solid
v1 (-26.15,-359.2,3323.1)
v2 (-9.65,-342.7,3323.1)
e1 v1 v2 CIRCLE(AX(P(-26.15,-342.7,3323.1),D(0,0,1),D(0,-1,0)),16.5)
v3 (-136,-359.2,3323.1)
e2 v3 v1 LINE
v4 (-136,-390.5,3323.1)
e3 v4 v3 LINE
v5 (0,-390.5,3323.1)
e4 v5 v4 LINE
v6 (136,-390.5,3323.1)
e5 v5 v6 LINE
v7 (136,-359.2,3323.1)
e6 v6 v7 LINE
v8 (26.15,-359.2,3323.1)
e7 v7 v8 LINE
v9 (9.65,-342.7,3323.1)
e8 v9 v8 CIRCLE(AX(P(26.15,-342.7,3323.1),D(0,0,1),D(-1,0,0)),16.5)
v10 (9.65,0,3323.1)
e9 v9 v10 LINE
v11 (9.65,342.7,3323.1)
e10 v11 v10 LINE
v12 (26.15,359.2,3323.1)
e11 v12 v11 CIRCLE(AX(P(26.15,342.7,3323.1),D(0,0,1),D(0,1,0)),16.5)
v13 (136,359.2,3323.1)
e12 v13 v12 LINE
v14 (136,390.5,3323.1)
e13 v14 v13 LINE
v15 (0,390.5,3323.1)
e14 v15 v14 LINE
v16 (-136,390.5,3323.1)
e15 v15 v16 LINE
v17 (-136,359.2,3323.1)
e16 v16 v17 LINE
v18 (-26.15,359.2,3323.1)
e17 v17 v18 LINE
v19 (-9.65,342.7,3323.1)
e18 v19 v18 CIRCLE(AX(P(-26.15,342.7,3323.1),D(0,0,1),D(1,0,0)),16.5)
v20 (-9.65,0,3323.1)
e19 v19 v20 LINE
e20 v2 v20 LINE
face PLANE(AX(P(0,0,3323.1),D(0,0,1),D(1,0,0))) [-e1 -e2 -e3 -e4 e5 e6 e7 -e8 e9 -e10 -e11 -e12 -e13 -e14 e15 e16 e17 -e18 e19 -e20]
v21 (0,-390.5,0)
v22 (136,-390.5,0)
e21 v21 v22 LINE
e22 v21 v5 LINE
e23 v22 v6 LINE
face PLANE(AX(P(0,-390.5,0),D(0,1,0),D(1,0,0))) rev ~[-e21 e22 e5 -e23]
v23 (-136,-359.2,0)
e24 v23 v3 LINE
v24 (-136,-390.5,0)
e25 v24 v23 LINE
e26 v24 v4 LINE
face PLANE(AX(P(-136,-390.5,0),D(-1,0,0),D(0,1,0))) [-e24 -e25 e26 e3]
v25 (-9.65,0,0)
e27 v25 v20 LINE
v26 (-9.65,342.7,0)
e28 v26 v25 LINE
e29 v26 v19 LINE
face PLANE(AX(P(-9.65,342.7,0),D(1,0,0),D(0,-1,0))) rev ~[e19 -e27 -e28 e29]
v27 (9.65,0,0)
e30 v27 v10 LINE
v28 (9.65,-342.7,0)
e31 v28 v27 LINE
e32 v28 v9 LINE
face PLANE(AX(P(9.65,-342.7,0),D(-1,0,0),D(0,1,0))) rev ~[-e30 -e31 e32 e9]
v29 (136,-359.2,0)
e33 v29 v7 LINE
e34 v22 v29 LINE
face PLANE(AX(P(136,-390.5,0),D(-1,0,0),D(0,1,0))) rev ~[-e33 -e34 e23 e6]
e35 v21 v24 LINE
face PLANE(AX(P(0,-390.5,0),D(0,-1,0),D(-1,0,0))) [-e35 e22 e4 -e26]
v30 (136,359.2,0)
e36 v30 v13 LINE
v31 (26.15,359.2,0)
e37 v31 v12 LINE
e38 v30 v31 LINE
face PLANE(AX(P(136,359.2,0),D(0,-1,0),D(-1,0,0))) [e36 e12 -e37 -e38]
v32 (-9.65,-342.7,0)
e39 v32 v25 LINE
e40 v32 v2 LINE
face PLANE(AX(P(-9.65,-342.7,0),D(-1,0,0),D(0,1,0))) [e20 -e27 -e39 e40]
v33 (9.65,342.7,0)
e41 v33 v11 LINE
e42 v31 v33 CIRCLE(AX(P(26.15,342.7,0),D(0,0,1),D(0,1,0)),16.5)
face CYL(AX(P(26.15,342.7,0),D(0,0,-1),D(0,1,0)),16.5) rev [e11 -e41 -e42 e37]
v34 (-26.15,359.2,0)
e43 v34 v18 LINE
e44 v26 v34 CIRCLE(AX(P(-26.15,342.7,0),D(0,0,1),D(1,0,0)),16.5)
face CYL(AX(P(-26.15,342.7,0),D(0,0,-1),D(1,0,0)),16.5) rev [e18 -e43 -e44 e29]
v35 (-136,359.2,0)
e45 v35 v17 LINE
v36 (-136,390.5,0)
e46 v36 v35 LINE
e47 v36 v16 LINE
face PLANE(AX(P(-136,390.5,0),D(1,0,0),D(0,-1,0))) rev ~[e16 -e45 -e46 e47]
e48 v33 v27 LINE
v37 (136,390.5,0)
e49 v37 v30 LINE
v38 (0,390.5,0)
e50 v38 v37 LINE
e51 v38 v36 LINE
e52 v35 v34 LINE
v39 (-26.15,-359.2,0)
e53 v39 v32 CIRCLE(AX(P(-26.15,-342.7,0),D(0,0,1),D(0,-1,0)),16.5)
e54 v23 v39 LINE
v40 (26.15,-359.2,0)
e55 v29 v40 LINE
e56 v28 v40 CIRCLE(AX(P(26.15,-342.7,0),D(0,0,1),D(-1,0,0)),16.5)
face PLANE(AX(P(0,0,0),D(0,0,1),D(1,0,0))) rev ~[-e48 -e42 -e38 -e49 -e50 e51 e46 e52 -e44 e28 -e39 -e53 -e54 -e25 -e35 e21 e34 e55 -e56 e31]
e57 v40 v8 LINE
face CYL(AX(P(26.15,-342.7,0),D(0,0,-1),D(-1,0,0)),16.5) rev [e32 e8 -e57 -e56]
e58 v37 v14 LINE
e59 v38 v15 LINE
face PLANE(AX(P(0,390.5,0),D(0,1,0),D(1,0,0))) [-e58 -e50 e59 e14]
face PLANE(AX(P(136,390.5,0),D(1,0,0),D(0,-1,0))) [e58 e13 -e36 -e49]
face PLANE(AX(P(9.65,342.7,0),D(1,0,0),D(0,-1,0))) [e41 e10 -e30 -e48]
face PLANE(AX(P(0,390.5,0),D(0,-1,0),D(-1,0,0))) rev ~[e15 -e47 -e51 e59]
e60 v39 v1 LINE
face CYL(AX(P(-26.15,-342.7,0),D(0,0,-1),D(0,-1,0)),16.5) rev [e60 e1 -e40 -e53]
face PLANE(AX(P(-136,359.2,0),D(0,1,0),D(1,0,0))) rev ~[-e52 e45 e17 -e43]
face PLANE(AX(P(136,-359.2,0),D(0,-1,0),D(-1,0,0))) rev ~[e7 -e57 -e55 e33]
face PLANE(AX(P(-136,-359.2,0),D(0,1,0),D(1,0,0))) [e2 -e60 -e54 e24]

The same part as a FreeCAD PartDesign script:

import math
import FreeCAD as App
import Part
import Sketcher
from FreeCAD import Vector

doc = App.newDocument("Part")
body = doc.addObject("PartDesign::Body", "Body")

sketch1 = body.newObject("Sketcher::SketchObject", "Sketch")
sketch1.AttachmentSupport = (doc.getObject("XY_Plane"), [""])
sketch1.MapMode = "FlatFace"
sketch1.addGeometry(Part.LineSegment(Vector(-136, -359.2, 0), Vector(-136, -390.5, 0)), False)
sketch1.addGeometry(Part.LineSegment(Vector(-136, -390.5, 0), Vector(136, -390.5, 0)), False)
sketch1.addGeometry(Part.LineSegment(Vector(136, -390.5, 0), Vector(136, -359.2, 0)), False)
sketch1.addGeometry(Part.LineSegment(Vector(136, -359.2, 0), Vector(26.15, -359.2, 0)), False)
sketch1.addGeometry(Part.ArcOfCircle(Part.Circle(Vector(26.15, -342.7, 0), Vector(0, 0, 1), 16.5), math.radians(180), math.radians(270)), False)
sketch1.addGeometry(Part.LineSegment(Vector(9.65, -342.7, 0), Vector(9.65, 342.7, 0)), False)
sketch1.addGeometry(Part.ArcOfCircle(Part.Circle(Vector(26.15, 342.7, 0), Vector(0, 0, 1), 16.5), math.radians(90), math.radians(180)), False)
sketch1.addGeometry(Part.LineSegment(Vector(26.15, 359.2, 0), Vector(136, 359.2, 0)), False)
sketch1.addGeometry(Part.LineSegment(Vector(136, 359.2, 0), Vector(136, 390.5, 0)), False)
sketch1.addGeometry(Part.LineSegment(Vector(136, 390.5, 0), Vector(-136, 390.5, 0)), False)
sketch1.addGeometry(Part.LineSegment(Vector(-136, 390.5, 0), Vector(-136, 359.2, 0)), False)
sketch1.addGeometry(Part.LineSegment(Vector(-136, 359.2, 0), Vector(-26.15, 359.2, 0)), False)
sketch1.addGeometry(Part.ArcOfCircle(Part.Circle(Vector(-26.15, 342.7, 0), Vector(0, 0, 1), 16.5), math.radians(0), math.radians(90)), False)
sketch1.addGeometry(Part.LineSegment(Vector(-9.65, 342.7, 0), Vector(-9.65, -342.7, 0)), False)
sketch1.addGeometry(Part.ArcOfCircle(Part.Circle(Vector(-26.15, -342.7, 0), Vector(0, 0, 1), 16.5), math.radians(-90), math.radians(0)), False)
sketch1.addGeometry(Part.LineSegment(Vector(-26.15, -359.2, 0), Vector(-136, -359.2, 0)), False)
sketch1.addConstraint(Sketcher.Constraint("Coincident", 0, 2, 1, 1))
sketch1.addConstraint(Sketcher.Constraint("Coincident", 1, 2, 2, 1))
sketch1.addConstraint(Sketcher.Constraint("Coincident", 2, 2, 3, 1))
sketch1.addConstraint(Sketcher.Constraint("Tangent", 3, 2, 4, 2))
sketch1.addConstraint(Sketcher.Constraint("Tangent", 4, 1, 5, 1))
sketch1.addConstraint(Sketcher.Constraint("Tangent", 5, 2, 6, 2))
sketch1.addConstraint(Sketcher.Constraint("Tangent", 6, 1, 7, 1))
sketch1.addConstraint(Sketcher.Constraint("Coincident", 7, 2, 8, 1))
sketch1.addConstraint(Sketcher.Constraint("Coincident", 8, 2, 9, 1))
sketch1.addConstraint(Sketcher.Constraint("Coincident", 9, 2, 10, 1))
sketch1.addConstraint(Sketcher.Constraint("Coincident", 10, 2, 11, 1))
sketch1.addConstraint(Sketcher.Constraint("Tangent", 11, 2, 12, 2))
sketch1.addConstraint(Sketcher.Constraint("Tangent", 12, 1, 13, 1))
sketch1.addConstraint(Sketcher.Constraint("Tangent", 13, 2, 14, 2))
sketch1.addConstraint(Sketcher.Constraint("Tangent", 14, 1, 15, 1))
sketch1.addConstraint(Sketcher.Constraint("Coincident", 15, 2, 0, 1))
sketch1.addConstraint(Sketcher.Constraint("Vertical", 0))
sketch1.addConstraint(Sketcher.Constraint("Horizontal", 1))
sketch1.addConstraint(Sketcher.Constraint("Vertical", 2))
sketch1.addConstraint(Sketcher.Constraint("Horizontal", 3))
sketch1.addConstraint(Sketcher.Constraint("Vertical", 5))
sketch1.addConstraint(Sketcher.Constraint("Horizontal", 7))
sketch1.addConstraint(Sketcher.Constraint("Vertical", 8))
sketch1.addConstraint(Sketcher.Constraint("Horizontal", 9))
sketch1.addConstraint(Sketcher.Constraint("Vertical", 10))
sketch1.addConstraint(Sketcher.Constraint("Horizontal", 11))
sketch1.addConstraint(Sketcher.Constraint("Vertical", 13))
sketch1.addConstraint(Sketcher.Constraint("Horizontal", 15))
sketch1.addConstraint(Sketcher.Constraint("Equal", 4, 6))
sketch1.addConstraint(Sketcher.Constraint("Equal", 6, 12))
sketch1.addConstraint(Sketcher.Constraint("Equal", 12, 14))
sketch1.addConstraint(Sketcher.Constraint("Symmetric", 4, 3, 12, 3, -1, 1))
sketch1.addConstraint(Sketcher.Constraint("Symmetric", 0, 2, 8, 2, -1, 1))
sketch1.addConstraint(Sketcher.Constraint("Symmetric", 7, 2, 10, 2, -2))
sketch1.addConstraint(Sketcher.Constraint("Symmetric", 2, 2, 15, 2, -2))
sketch1.addConstraint(Sketcher.Constraint("Radius", 4, 16.5))
sketch1.addConstraint(Sketcher.Constraint("DistanceY", 0, 2, 0, 1, 31.3))
sketch1.addConstraint(Sketcher.Constraint("DistanceX", 0, 2, -1, 1, 136.0))
sketch1.addConstraint(Sketcher.Constraint("DistanceY", 0, 2, -1, 1, 390.5))
sketch1.addConstraint(Sketcher.Constraint("DistanceX", -1, 1, 4, 1, 9.65))
pad1 = body.newObject("PartDesign::Pad", "Pad")
pad1.Profile = sketch1
pad1.Length = 3323.1

doc.recompute()
